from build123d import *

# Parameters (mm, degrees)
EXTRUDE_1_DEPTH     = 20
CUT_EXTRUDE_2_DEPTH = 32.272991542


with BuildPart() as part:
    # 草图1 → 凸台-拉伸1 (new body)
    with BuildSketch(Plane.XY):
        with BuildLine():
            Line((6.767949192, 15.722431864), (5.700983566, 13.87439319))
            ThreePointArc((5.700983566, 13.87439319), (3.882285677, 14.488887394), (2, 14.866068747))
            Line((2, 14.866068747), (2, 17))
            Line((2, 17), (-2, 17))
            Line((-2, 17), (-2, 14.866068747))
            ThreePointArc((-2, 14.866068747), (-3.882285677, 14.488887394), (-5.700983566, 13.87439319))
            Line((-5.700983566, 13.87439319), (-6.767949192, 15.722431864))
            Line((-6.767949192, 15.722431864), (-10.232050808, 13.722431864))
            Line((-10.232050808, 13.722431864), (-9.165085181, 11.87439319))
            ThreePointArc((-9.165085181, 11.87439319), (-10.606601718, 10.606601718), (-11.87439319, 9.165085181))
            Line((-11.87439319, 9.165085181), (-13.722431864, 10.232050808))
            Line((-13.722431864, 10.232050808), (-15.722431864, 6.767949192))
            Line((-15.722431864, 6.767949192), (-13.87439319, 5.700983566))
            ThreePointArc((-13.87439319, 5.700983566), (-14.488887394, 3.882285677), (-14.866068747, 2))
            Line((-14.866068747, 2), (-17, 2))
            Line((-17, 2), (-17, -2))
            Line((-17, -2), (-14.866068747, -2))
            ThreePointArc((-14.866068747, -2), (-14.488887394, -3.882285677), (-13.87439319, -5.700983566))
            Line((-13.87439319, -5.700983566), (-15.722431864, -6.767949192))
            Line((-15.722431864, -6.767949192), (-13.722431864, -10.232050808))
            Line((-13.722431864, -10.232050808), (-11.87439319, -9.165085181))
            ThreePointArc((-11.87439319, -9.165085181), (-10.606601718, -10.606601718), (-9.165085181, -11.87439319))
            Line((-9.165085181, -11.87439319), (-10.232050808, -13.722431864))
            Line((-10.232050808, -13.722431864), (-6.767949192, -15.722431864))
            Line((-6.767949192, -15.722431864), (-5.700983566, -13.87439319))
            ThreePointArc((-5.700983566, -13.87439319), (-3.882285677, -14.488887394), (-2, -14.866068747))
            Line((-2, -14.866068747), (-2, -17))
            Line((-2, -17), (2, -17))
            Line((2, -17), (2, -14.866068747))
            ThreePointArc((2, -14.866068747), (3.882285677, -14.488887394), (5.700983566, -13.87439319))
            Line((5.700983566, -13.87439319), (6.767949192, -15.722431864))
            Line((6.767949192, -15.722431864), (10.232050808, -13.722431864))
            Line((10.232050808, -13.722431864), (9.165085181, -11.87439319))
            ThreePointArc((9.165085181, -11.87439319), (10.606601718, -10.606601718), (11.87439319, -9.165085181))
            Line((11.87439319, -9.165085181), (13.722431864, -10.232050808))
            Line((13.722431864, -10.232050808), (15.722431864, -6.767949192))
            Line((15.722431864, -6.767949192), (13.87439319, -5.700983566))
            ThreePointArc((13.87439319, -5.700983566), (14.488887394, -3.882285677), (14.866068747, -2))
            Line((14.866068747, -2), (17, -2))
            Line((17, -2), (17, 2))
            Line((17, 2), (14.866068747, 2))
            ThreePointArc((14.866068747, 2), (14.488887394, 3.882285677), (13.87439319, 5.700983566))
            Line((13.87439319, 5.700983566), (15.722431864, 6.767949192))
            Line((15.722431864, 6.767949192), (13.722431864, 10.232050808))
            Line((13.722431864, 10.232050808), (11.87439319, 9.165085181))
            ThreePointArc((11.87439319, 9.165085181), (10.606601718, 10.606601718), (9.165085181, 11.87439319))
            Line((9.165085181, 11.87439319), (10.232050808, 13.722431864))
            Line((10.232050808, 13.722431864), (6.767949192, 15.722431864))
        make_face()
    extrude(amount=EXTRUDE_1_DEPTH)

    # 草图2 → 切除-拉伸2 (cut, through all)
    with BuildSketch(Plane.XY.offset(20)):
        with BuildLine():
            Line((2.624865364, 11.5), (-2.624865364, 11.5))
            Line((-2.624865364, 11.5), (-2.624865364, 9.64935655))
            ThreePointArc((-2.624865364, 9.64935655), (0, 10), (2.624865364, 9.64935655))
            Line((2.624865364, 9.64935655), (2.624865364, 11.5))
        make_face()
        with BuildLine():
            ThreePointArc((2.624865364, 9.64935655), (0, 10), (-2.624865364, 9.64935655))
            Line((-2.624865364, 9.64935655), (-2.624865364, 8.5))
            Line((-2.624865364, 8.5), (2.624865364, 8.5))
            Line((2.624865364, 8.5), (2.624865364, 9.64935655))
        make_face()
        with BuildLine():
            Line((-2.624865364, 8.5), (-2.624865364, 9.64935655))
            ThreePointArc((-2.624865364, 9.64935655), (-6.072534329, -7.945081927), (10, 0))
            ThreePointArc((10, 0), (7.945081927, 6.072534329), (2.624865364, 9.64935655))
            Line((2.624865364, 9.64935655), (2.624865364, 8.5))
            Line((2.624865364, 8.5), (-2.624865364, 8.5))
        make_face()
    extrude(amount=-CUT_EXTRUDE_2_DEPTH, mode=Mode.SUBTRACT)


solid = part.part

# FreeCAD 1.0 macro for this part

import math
import FreeCAD as App
import Part
import Sketcher
Q = App.Units.Quantity

doc = App.newDocument("Part")
body = doc.addObject("PartDesign::Body", "Body")

# Sketch on XY plane
sketch1 = body.newObject("Sketcher::SketchObject", "Sketch")
sketch1.AttachmentSupport = (doc.getObject("XY_Plane"), [""])
sketch1.MapMode = "FlatFace"
sketch1.addGeometry([
    Part.LineSegment(App.Vector(6.8, 15.7, 0), App.Vector(5.7, 13.9, 0)),  # 0
    Part.ArcOfCircle(Part.Circle(App.Vector(0, 0, 0), App.Vector(0, 0, 1), 15), math.radians(67.66), math.radians(82.34)),  # 1
    Part.LineSegment(App.Vector(2, 14.9, 0), App.Vector(2, 17, 0)),  # 2
    Part.LineSegment(App.Vector(2, 17, 0), App.Vector(-2, 17, 0)),  # 3
    Part.LineSegment(App.Vector(-2, 17, 0), App.Vector(-2, 14.9, 0)),  # 4
    Part.ArcOfCircle(Part.Circle(App.Vector(0, 0, 0), App.Vector(0, 0, 1), 15), math.radians(97.66), math.radians(112.34)),  # 5
    Part.LineSegment(App.Vector(-5.7, 13.9, 0), App.Vector(-6.8, 15.7, 0)),  # 6
    Part.LineSegment(App.Vector(-6.8, 15.7, 0), App.Vector(-10.2, 13.7, 0)),  # 7
    Part.LineSegment(App.Vector(-10.2, 13.7, 0), App.Vector(-9.2, 11.9, 0)),  # 8
    Part.ArcOfCircle(Part.Circle(App.Vector(0, 0, 0), App.Vector(0, 0, 1), 15), math.radians(127.66), math.radians(142.34)),  # 9
    Part.LineSegment(App.Vector(-11.9, 9.2, 0), App.Vector(-13.7, 10.2, 0)),  # 10
    Part.LineSegment(App.Vector(-13.7, 10.2, 0), App.Vector(-15.7, 6.8, 0)),  # 11
    Part.LineSegment(App.Vector(-15.7, 6.8, 0), App.Vector(-13.9, 5.7, 0)),  # 12
    Part.ArcOfCircle(Part.Circle(App.Vector(0, 0, 0), App.Vector(0, 0, 1), 15), math.radians(157.66), math.radians(172.34)),  # 13
    Part.LineSegment(App.Vector(-14.9, 2, 0), App.Vector(-17, 2, 0)),  # 14
    Part.LineSegment(App.Vector(-17, 2, 0), App.Vector(-17, -2, 0)),  # 15
    Part.LineSegment(App.Vector(-17, -2, 0), App.Vector(-14.9, -2, 0)),  # 16
    Part.ArcOfCircle(Part.Circle(App.Vector(0, 0, 0), App.Vector(0, 0, 1), 15), math.radians(-172.34), math.radians(-157.66)),  # 17
    Part.LineSegment(App.Vector(-13.9, -5.7, 0), App.Vector(-15.7, -6.8, 0)),  # 18
    Part.LineSegment(App.Vector(-15.7, -6.8, 0), App.Vector(-13.7, -10.2, 0)),  # 19
    Part.LineSegment(App.Vector(-13.7, -10.2, 0), App.Vector(-11.9, -9.2, 0)),  # 20
    Part.ArcOfCircle(Part.Circle(App.Vector(0, 0, 0), App.Vector(0, 0, 1), 15), math.radians(-142.34), math.radians(-127.66)),  # 21
    Part.LineSegment(App.Vector(-9.2, -11.9, 0), App.Vector(-10.2, -13.7, 0)),  # 22
    Part.LineSegment(App.Vector(-10.2, -13.7, 0), App.Vector(-6.8, -15.7, 0)),  # 23
    Part.LineSegment(App.Vector(-6.8, -15.7, 0), App.Vector(-5.7, -13.9, 0)),  # 24
    Part.ArcOfCircle(Part.Circle(App.Vector(0, 0, 0), App.Vector(0, 0, 1), 15), math.radians(-112.34), math.radians(-97.66)),  # 25
    Part.LineSegment(App.Vector(-2, -14.9, 0), App.Vector(-2, -17, 0)),  # 26
    Part.LineSegment(App.Vector(-2, -17, 0), App.Vector(2, -17, 0)),  # 27
    Part.LineSegment(App.Vector(2, -17, 0), App.Vector(2, -14.9, 0)),  # 28
    Part.ArcOfCircle(Part.Circle(App.Vector(0, 0, 0), App.Vector(0, 0, 1), 15), math.radians(-82.34), math.radians(-67.66)),  # 29
    Part.LineSegment(App.Vector(5.7, -13.9, 0), App.Vector(6.8, -15.7, 0)),  # 30
    Part.LineSegment(App.Vector(6.8, -15.7, 0), App.Vector(10.2, -13.7, 0)),  # 31
    Part.LineSegment(App.Vector(10.2, -13.7, 0), App.Vector(9.2, -11.9, 0)),  # 32
    Part.ArcOfCircle(Part.Circle(App.Vector(0, 0, 0), App.Vector(0, 0, 1), 15), math.radians(-52.34), math.radians(-37.66)),  # 33
    Part.LineSegment(App.Vector(11.9, -9.2, 0), App.Vector(13.7, -10.2, 0)),  # 34
    Part.LineSegment(App.Vector(13.7, -10.2, 0), App.Vector(15.7, -6.8, 0)),  # 35
    Part.LineSegment(App.Vector(15.7, -6.8, 0), App.Vector(13.9, -5.7, 0)),  # 36
    Part.ArcOfCircle(Part.Circle(App.Vector(0, 0, 0), App.Vector(0, 0, 1), 15), math.radians(-22.34), math.radians(-7.66)),  # 37
    Part.LineSegment(App.Vector(14.9, -2, 0), App.Vector(17, -2, 0)),  # 38
    Part.LineSegment(App.Vector(17, -2, 0), App.Vector(17, 2, 0)),  # 39
    Part.LineSegment(App.Vector(17, 2, 0), App.Vector(14.9, 2, 0)),  # 40
    Part.ArcOfCircle(Part.Circle(App.Vector(0, 0, 0), App.Vector(0, 0, 1), 15), math.radians(7.66), math.radians(22.34)),  # 41
    Part.LineSegment(App.Vector(13.9, 5.7, 0), App.Vector(15.7, 6.8, 0)),  # 42
    Part.LineSegment(App.Vector(15.7, 6.8, 0), App.Vector(13.7, 10.2, 0)),  # 43
    Part.LineSegment(App.Vector(13.7, 10.2, 0), App.Vector(11.9, 9.2, 0)),  # 44
    Part.ArcOfCircle(Part.Circle(App.Vector(0, 0, 0), App.Vector(0, 0, 1), 15), math.radians(37.66), math.radians(52.34)),  # 45
    Part.LineSegment(App.Vector(9.2, 11.9, 0), App.Vector(10.2, 13.7, 0)),  # 46
    Part.LineSegment(App.Vector(10.2, 13.7, 0), App.Vector(6.8, 15.7, 0)),  # 47
], False)
sketch1.addConstraint([
    Sketcher.Constraint("Coincident", 0, 2, 1, 1),
    Sketcher.Constraint("Coincident", 1, 2, 2, 1),
    Sketcher.Constraint("Coincident", 2, 2, 3, 1),
    Sketcher.Constraint("Coincident", 3, 2, 4, 1),
    Sketcher.Constraint("Coincident", 4, 2, 5, 1),
    Sketcher.Constraint("Coincident", 5, 2, 6, 1),
    Sketcher.Constraint("Coincident", 6, 2, 7, 1),
    Sketcher.Constraint("Coincident", 7, 2, 8, 1),
    Sketcher.Constraint("Coincident", 8, 2, 9, 1),
    Sketcher.Constraint("Coincident", 9, 2, 10, 1),
    Sketcher.Constraint("Coincident", 10, 2, 11, 1),
    Sketcher.Constraint("Coincident", 11, 2, 12, 1),
    Sketcher.Constraint("Coincident", 12, 2, 13, 1),
    Sketcher.Constraint("Coincident", 13, 2, 14, 1),
    Sketcher.Constraint("Coincident", 14, 2, 15, 1),
    Sketcher.Constraint("Coincident", 15, 2, 16, 1),
    Sketcher.Constraint("Coincident", 16, 2, 17, 1),
    Sketcher.Constraint("Coincident", 17, 2, 18, 1),
    Sketcher.Constraint("Coincident", 18, 2, 19, 1),
    Sketcher.Constraint("Coincident", 19, 2, 20, 1),
    Sketcher.Constraint("Coincident", 20, 2, 21, 1),
    Sketcher.Constraint("Coincident", 21, 2, 22, 1),
    Sketcher.Constraint("Coincident", 22, 2, 23, 1),
    Sketcher.Constraint("Coincident", 23, 2, 24, 1),
    Sketcher.Constraint("Coincident", 24, 2, 25, 1),
    Sketcher.Constraint("Coincident", 25, 2, 26, 1),
    Sketcher.Constraint("Coincident", 26, 2, 27, 1),
    Sketcher.Constraint("Coincident", 27, 2, 28, 1),
    Sketcher.Constraint("Coincident", 28, 2, 29, 1),
    Sketcher.Constraint("Coincident", 29, 2, 30, 1),
    Sketcher.Constraint("Coincident", 30, 2, 31, 1),
    Sketcher.Constraint("Coincident", 31, 2, 32, 1),
    Sketcher.Constraint("Coincident", 32, 2, 33, 1),
    Sketcher.Constraint("Coincident", 33, 2, 34, 1),
    Sketcher.Constraint("Coincident", 34, 2, 35, 1),
    Sketcher.Constraint("Coincident", 35, 2, 36, 1),
    Sketcher.Constraint("Coincident", 36, 2, 37, 1),
    Sketcher.Constraint("Coincident", 37, 2, 38, 1),
    Sketcher.Constraint("Coincident", 38, 2, 39, 1),
    Sketcher.Constraint("Coincident", 39, 2, 40, 1),
    Sketcher.Constraint("Coincident", 40, 2, 41, 1),
    Sketcher.Constraint("Coincident", 41, 2, 42, 1),
    Sketcher.Constraint("Coincident", 42, 2, 43, 1),
    Sketcher.Constraint("Coincident", 43, 2, 44, 1),
    Sketcher.Constraint("Coincident", 44, 2, 45, 1),
    Sketcher.Constraint("Coincident", 45, 2, 46, 1),
    Sketcher.Constraint("Coincident", 46, 2, 47, 1),
    Sketcher.Constraint("Coincident", 47, 2, 0, 1),
    Sketcher.Constraint("Vertical", 2),
    Sketcher.Constraint("Horizontal", 3),
    Sketcher.Constraint("Vertical", 4),
    Sketcher.Constraint("Horizontal", 14),
    Sketcher.Constraint("Vertical", 15),
    Sketcher.Constraint("Horizontal", 16),
    Sketcher.Constraint("Vertical", 26),
    Sketcher.Constraint("Horizontal", 27),
    Sketcher.Constraint("Vertical", 28),
    Sketcher.Constraint("Horizontal", 38),
    Sketcher.Constraint("Vertical", 39),
    Sketcher.Constraint("Horizontal", 40),
    Sketcher.Constraint("Coincident", 1, 3, -1, 1),
    Sketcher.Constraint("Coincident", 5, 3, -1, 1),
    Sketcher.Constraint("Coincident", 9, 3, -1, 1),
    Sketcher.Constraint("Coincident", 13, 3, -1, 1),
    Sketcher.Constraint("Coincident", 17, 3, -1, 1),
    Sketcher.Constraint("Coincident", 21, 3, -1, 1),
    Sketcher.Constraint("Coincident", 25, 3, -1, 1),
    Sketcher.Constraint("Coincident", 29, 3, -1, 1),
    Sketcher.Constraint("Coincident", 33, 3, -1, 1),
    Sketcher.Constraint("Coincident", 37, 3, -1, 1),
    Sketcher.Constraint("Coincident", 41, 3, -1, 1),
    Sketcher.Constraint("Coincident", 45, 3, -1, 1),
    Sketcher.Constraint("Equal", 1, 5),
    Sketcher.Constraint("Equal", 5, 9),
    Sketcher.Constraint("Equal", 9, 13),
    Sketcher.Constraint("Equal", 13, 17),
    Sketcher.Constraint("Equal", 17, 21),
    Sketcher.Constraint("Equal", 21, 25),
    Sketcher.Constraint("Equal", 25, 29),
    Sketcher.Constraint("Equal", 29, 33),
    Sketcher.Constraint("Equal", 33, 37),
    Sketcher.Constraint("Equal", 37, 41),
    Sketcher.Constraint("Equal", 41, 45),
    Sketcher.Constraint("Symmetric", 2, 2, 26, 2, -1, 1),
    Sketcher.Constraint("Symmetric", 6, 2, 30, 2, -1, 1),
    Sketcher.Constraint("Symmetric", 7, 2, 31, 2, -1, 1),
    Sketcher.Constraint("Symmetric", 10, 2, 34, 2, -1, 1),
    Sketcher.Constraint("Symmetric", 11, 2, 35, 2, -1, 1),
    Sketcher.Constraint("Symmetric", 14, 2, 38, 2, -1, 1),
    Sketcher.Constraint("Symmetric", 18, 2, 42, 2, -1, 1),
    Sketcher.Constraint("Symmetric", 19, 2, 43, 2, -1, 1),
    Sketcher.Constraint("Symmetric", 22, 2, 46, 2, -1, 1),
    Sketcher.Constraint("Symmetric", 23, 2, 47, 2, -1, 1),
    Sketcher.Constraint("Symmetric", 23, 2, 30, 2, -2),
    Sketcher.Constraint("Symmetric", 22, 2, 31, 2, -2),
    Sketcher.Constraint("Symmetric", 19, 2, 34, 2, -2),
    Sketcher.Constraint("Symmetric", 18, 2, 35, 2, -2),
    Sketcher.Constraint("Perpendicular", 6, 7),
    Sketcher.Constraint("Perpendicular", 7, 8),
    Sketcher.Constraint("Perpendicular", 0, 10),
    Sketcher.Constraint("Perpendicular", 10, 11),
    Sketcher.Constraint("Perpendicular", 11, 12),
    Sketcher.Constraint("Perpendicular", 8, 18),
    Sketcher.Constraint("Perpendicular", 18, 19),
    Sketcher.Constraint("Perpendicular", 19, 20),
    Sketcher.Constraint("Perpendicular", 12, 22),
    Sketcher.Constraint("Perpendicular", 23, 24),
    Sketcher.Constraint("Perpendicular", 20, 30),
    Sketcher.Constraint("Perpendicular", 31, 32),
    Sketcher.Constraint("Perpendicular", 24, 34),
    Sketcher.Constraint("Perpendicular", 35, 36),
    Sketcher.Constraint("Perpendicular", 32, 42),
    Sketcher.Constraint("Perpendicular", 43, 44),
    Sketcher.Constraint("Perpendicular", 36, 46),
    Sketcher.Constraint("Horizontal", 1, 2, 4, 2),
    Sketcher.Constraint("Horizontal", 25, 2, 28, 2),
    Sketcher.Constraint("Horizontal", 16, 2, 37, 2),
    Sketcher.Constraint("Horizontal", 14, 2, 39, 2),
    Sketcher.Constraint("Equal", 40, 2),
    Sketcher.Constraint("Equal", 27, 15),
    Sketcher.Constraint("Equal", 6, 8),
    Sketcher.Constraint("Equal", 8, 10),
    Sketcher.Constraint("Equal", 7, 11),
    Sketcher.Constraint("Equal", 10, 12),
    Sketcher.Constraint("Radius", 1, Q("15 mm")),
    Sketcher.Constraint("DistanceX", 3, 2, 3, 1, Q("4 mm")),
    Sketcher.Constraint("Angle", 0, Q("-120 deg")),
    Sketcher.Constraint("Distance", 7, Q("4 mm")),
    Sketcher.Constraint("DistanceY", -1, 1, 2, 2, Q("17 mm")),
    Sketcher.Constraint("Distance", 0, Q("2.133931 mm")),
])
pad1 = body.newObject("PartDesign::Pad", "Pad")
pad1.Profile = sketch1
pad1.Length = 20

# Sketch on XY plane
sketch2 = body.newObject("Sketcher::SketchObject", "Sketch001")
sketch2.AttachmentSupport = (doc.getObject("XY_Plane"), [""])
sketch2.MapMode = "FlatFace"
sketch2.AttachmentOffset = App.Placement(App.Vector(0, 0, 20), App.Rotation())
sketch2.addGeometry([
    Part.LineSegment(App.Vector(2.6, 11.5, 0), App.Vector(-2.6, 11.5, 0)),  # 0
    Part.LineSegment(App.Vector(-2.6, 11.5, 0), App.Vector(-2.6, 9.6, 0)),  # 1
    Part.ArcOfCircle(Part.Circle(App.Vector(0, 0, 0), App.Vector(0, 0, 1), 10), math.radians(105), math.radians(360)),  # 2
    Part.ArcOfCircle(Part.Circle(App.Vector(0, 0, 0), App.Vector(0, 0, 1), 10), math.radians(0), math.radians(75)),  # 3
    Part.LineSegment(App.Vector(2.6, 9.6, 0), App.Vector(2.6, 11.5, 0)),  # 4
], False)
sketch2.addConstraint([
    Sketcher.Constraint("Coincident", 0, 2, 1, 1),
    Sketcher.Constraint("Coincident", 1, 2, 2, 1),
    Sketcher.Constraint("Tangent", 2, 2, 3, 1),
    Sketcher.Constraint("Coincident", 3, 2, 4, 1),
    Sketcher.Constraint("Coincident", 4, 2, 0, 1),
    Sketcher.Constraint("Horizontal", 0),
    Sketcher.Constraint("Vertical", 1),
    Sketcher.Constraint("Vertical", 4),
    Sketcher.Constraint("Coincident", 2, 3, -1, 1),
    Sketcher.Constraint("Equal", 2, 3),
    Sketcher.Constraint("PointOnObject", 2, 2, -1),
    Sketcher.Constraint("Horizontal", 1, 2, 3, 2),
    Sketcher.Constraint("Radius", 2, Q("10 mm")),
    Sketcher.Constraint("DistanceY", -1, 1, 0, 2, Q("11.5 mm")),
    Sketcher.Constraint("DistanceX", 0, 2, 0, 1, Q("5.249731 mm")),
])
pocket1 = body.newObject("PartDesign::Pocket", "Pocket")
pocket1.Profile = sketch2
pocket1.Type = "ThroughAll"

doc.recompute()
